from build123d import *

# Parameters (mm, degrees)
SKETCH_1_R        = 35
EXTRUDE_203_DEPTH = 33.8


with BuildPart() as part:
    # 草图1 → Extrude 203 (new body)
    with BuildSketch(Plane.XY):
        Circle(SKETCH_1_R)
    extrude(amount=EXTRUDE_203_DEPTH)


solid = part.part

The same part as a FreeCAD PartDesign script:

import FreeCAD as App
import Part
import Sketcher
Q = App.Units.Quantity

doc = App.newDocument("Part")
body = doc.addObject("PartDesign::Body", "Body")

# Sketch on XY plane
sketch1 = body.newObject("Sketcher::SketchObject", "Sketch")
sketch1.AttachmentSupport = (doc.getObject("XY_Plane"), [""])
sketch1.MapMode = "FlatFace"
sketch1.addGeometry(Part.Circle(App.Vector(0, 0, 0), App.Vector(0, 0, 1), 35), False)
sketch1.addConstraint(Sketcher.Constraint("Coincident", 0, 3, -1, 1))
sketch1.addConstraint(Sketcher.Constraint("Diameter", 0, Q("70 mm")))
pad1 = body.newObject("PartDesign::Pad", "Pad")
pad1.Profile = sketch1
pad1.Length = 33.8

doc.recompute()
